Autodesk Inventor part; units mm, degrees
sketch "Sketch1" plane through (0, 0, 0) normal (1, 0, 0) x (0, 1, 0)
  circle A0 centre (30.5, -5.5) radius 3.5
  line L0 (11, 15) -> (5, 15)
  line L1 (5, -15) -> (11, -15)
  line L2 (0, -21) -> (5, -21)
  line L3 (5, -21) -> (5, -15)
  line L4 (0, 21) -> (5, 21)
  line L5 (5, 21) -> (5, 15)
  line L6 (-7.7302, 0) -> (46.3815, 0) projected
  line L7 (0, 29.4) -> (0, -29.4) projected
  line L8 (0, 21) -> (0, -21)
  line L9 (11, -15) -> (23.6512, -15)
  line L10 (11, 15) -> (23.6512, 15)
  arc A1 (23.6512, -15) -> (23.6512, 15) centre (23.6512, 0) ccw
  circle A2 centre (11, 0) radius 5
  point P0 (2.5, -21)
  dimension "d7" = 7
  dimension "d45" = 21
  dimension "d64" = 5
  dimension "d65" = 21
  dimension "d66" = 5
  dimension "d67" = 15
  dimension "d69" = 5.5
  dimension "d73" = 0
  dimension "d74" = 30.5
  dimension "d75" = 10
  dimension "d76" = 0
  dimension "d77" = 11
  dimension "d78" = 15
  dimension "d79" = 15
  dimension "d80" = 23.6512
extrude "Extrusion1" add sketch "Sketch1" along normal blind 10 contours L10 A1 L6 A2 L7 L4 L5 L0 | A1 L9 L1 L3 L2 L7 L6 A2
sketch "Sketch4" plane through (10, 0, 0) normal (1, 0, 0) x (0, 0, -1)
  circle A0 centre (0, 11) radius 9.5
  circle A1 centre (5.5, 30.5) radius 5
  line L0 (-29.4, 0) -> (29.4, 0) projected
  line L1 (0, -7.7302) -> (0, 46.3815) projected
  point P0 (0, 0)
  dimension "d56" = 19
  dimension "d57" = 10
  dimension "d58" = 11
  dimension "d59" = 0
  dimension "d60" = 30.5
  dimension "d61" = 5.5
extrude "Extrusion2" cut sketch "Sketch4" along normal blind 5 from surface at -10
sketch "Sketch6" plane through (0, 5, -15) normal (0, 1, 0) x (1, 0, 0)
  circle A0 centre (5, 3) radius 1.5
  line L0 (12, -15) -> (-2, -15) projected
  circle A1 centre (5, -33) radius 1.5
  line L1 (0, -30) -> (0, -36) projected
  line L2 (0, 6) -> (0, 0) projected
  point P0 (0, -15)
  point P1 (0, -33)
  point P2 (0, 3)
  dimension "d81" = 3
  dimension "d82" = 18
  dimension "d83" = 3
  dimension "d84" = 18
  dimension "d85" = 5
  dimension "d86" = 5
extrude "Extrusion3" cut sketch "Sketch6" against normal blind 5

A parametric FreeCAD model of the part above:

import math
import FreeCAD as App
import Part
import Sketcher

V = App.Vector
Q = App.Units.Quantity

doc = App.newDocument("Part")
body = doc.addObject("PartDesign::Body", "Body")

sketch1 = body.newObject("Sketcher::SketchObject", "Sketch")
sketch1.AttachmentSupport = (doc.getObject("YZ_Plane"), [""])
sketch1.MapMode = "FlatFace"
sketch1.addGeometry([
    Part.LineSegment(V(23.6512, 15, 0), V(5, 15, 0)),
    Part.LineSegment(V(5, 15, 0), V(5, 21, 0)),
    Part.LineSegment(V(5, 21, 0), V(0, 21, 0)),
    Part.LineSegment(V(0, 21, 0), V(0, -21, 0)),
    Part.LineSegment(V(0, -21, 0), V(5, -21, 0)),
    Part.LineSegment(V(5, -21, 0), V(5, -15, 0)),
    Part.LineSegment(V(5, -15, 0), V(23.6512, -15, 0)),
    Part.ArcOfCircle(Part.Circle(V(23.6512, 0, 0), V(0, 0, 1), 15), math.radians(-90), math.radians(90)),
    Part.Circle(V(11, 0, 0), V(0, 0, 1), 5),
    Part.Circle(V(30.5, -5.5, 0), V(0, 0, 1), 3.5),
], False)
sketch1.addConstraint([
    Sketcher.Constraint("Coincident", 0, 2, 1, 1),
    Sketcher.Constraint("Coincident", 1, 2, 2, 1),
    Sketcher.Constraint("Coincident", 2, 2, 3, 1),
    Sketcher.Constraint("Coincident", 3, 2, 4, 1),
    Sketcher.Constraint("Coincident", 4, 2, 5, 1),
    Sketcher.Constraint("Coincident", 5, 2, 6, 1),
    Sketcher.Constraint("Tangent", 6, 2, 7, 1),
    Sketcher.Constraint("Tangent", 7, 2, 0, 1),
    Sketcher.Constraint("Horizontal", 0),
    Sketcher.Constraint("Vertical", 1),
    Sketcher.Constraint("Horizontal", 2),
    Sketcher.Constraint("Vertical", 3),
    Sketcher.Constraint("Horizontal", 4),
    Sketcher.Constraint("Vertical", 5),
    Sketcher.Constraint("Horizontal", 6),
    Sketcher.Constraint("Symmetric", 2, 2, 3, 2, -1, 1),
    Sketcher.Constraint("Symmetric", 0, 2, 5, 2, -1),
    Sketcher.Constraint("PointOnObject", 8, 3, -1),
    Sketcher.Constraint("Diameter", 8, Q("10 mm")),
    Sketcher.Constraint("Diameter", 9, Q("7 mm")),
    Sketcher.Constraint("Radius", 7, Q("15 mm")),
    Sketcher.Constraint("DistanceX", 2, 2, 2, 1, Q("5 mm")),
    Sketcher.Constraint("DistanceX", -1, 1, 8, 3, Q("11 mm")),
    Sketcher.Constraint("DistanceY", -1, 1, 1, 2, Q("21 mm")),
    Sketcher.Constraint("DistanceX", -1, 1, 9, 3, Q("30.5 mm")),
    Sketcher.Constraint("DistanceY", 9, 3, -1, 1, Q("5.5 mm")),
    Sketcher.Constraint("DistanceX", -1, 1, 7, 3, Q("23.6512 mm")),
])
pad1 = body.newObject("PartDesign::Pad", "Pad")
pad1.Profile = sketch1
pad1.Length = 10

sketch2 = body.newObject("Sketcher::SketchObject", "Sketch001")
sketch2.AttachmentSupport = (doc.getObject("YZ_Plane"), [""])
sketch2.MapMode = "FlatFace"
sketch2.addGeometry([
    Part.Circle(V(11, 0, 0), V(0, 0, 1), 9.5),
    Part.Circle(V(30.5, -5.5, 0), V(0, 0, 1), 5),
], False)
sketch2.addConstraint([
    Sketcher.Constraint("PointOnObject", 0, 3, -1),
    Sketcher.Constraint("Diameter", 0, Q("19 mm")),
    Sketcher.Constraint("Diameter", 1, Q("10 mm")),
    Sketcher.Constraint("DistanceX", -1, 1, 0, 3, Q("11 mm")),
    Sketcher.Constraint("DistanceX", -1, 1, 1, 3, Q("30.5 mm")),
    Sketcher.Constraint("DistanceY", 1, 3, -1, 1, Q("5.5 mm")),
])
pocket1 = body.newObject("PartDesign::Pocket", "Pocket")
pocket1.Profile = sketch2
pocket1.Length = 5
pocket1.Reversed = True

sketch3 = body.newObject("Sketcher::SketchObject", "Sketch002")
sketch3.AttachmentSupport = (doc.getObject("XZ_Plane"), [""])
sketch3.MapMode = "FlatFace"
sketch3.AttachmentOffset = App.Placement(V(0, 0, -5), App.Rotation())
sketch3.addGeometry([
    Part.Circle(V(5, -18, 0), V(0, 0, 1), 1.5),
    Part.Circle(V(5, 18, 0), V(0, 0, 1), 1.5),
], False)
sketch3.addConstraint([
    Sketcher.Constraint("Equal", 0, 1),
    Sketcher.Constraint("Symmetric", 0, 3, 1, 3, -1),
    Sketcher.Constraint("Diameter", 0, Q("3 mm")),
    Sketcher.Constraint("DistanceX", -1, 1, 0, 3, Q("5 mm")),
    Sketcher.Constraint("DistanceY", 0, 3, -1, 1, Q("18 mm")),
])
pocket2 = body.newObject("PartDesign::Pocket", "Pocket001")
pocket2.Profile = sketch3
pocket2.Length = 5
pocket2.Reversed = True

doc.recompute()
